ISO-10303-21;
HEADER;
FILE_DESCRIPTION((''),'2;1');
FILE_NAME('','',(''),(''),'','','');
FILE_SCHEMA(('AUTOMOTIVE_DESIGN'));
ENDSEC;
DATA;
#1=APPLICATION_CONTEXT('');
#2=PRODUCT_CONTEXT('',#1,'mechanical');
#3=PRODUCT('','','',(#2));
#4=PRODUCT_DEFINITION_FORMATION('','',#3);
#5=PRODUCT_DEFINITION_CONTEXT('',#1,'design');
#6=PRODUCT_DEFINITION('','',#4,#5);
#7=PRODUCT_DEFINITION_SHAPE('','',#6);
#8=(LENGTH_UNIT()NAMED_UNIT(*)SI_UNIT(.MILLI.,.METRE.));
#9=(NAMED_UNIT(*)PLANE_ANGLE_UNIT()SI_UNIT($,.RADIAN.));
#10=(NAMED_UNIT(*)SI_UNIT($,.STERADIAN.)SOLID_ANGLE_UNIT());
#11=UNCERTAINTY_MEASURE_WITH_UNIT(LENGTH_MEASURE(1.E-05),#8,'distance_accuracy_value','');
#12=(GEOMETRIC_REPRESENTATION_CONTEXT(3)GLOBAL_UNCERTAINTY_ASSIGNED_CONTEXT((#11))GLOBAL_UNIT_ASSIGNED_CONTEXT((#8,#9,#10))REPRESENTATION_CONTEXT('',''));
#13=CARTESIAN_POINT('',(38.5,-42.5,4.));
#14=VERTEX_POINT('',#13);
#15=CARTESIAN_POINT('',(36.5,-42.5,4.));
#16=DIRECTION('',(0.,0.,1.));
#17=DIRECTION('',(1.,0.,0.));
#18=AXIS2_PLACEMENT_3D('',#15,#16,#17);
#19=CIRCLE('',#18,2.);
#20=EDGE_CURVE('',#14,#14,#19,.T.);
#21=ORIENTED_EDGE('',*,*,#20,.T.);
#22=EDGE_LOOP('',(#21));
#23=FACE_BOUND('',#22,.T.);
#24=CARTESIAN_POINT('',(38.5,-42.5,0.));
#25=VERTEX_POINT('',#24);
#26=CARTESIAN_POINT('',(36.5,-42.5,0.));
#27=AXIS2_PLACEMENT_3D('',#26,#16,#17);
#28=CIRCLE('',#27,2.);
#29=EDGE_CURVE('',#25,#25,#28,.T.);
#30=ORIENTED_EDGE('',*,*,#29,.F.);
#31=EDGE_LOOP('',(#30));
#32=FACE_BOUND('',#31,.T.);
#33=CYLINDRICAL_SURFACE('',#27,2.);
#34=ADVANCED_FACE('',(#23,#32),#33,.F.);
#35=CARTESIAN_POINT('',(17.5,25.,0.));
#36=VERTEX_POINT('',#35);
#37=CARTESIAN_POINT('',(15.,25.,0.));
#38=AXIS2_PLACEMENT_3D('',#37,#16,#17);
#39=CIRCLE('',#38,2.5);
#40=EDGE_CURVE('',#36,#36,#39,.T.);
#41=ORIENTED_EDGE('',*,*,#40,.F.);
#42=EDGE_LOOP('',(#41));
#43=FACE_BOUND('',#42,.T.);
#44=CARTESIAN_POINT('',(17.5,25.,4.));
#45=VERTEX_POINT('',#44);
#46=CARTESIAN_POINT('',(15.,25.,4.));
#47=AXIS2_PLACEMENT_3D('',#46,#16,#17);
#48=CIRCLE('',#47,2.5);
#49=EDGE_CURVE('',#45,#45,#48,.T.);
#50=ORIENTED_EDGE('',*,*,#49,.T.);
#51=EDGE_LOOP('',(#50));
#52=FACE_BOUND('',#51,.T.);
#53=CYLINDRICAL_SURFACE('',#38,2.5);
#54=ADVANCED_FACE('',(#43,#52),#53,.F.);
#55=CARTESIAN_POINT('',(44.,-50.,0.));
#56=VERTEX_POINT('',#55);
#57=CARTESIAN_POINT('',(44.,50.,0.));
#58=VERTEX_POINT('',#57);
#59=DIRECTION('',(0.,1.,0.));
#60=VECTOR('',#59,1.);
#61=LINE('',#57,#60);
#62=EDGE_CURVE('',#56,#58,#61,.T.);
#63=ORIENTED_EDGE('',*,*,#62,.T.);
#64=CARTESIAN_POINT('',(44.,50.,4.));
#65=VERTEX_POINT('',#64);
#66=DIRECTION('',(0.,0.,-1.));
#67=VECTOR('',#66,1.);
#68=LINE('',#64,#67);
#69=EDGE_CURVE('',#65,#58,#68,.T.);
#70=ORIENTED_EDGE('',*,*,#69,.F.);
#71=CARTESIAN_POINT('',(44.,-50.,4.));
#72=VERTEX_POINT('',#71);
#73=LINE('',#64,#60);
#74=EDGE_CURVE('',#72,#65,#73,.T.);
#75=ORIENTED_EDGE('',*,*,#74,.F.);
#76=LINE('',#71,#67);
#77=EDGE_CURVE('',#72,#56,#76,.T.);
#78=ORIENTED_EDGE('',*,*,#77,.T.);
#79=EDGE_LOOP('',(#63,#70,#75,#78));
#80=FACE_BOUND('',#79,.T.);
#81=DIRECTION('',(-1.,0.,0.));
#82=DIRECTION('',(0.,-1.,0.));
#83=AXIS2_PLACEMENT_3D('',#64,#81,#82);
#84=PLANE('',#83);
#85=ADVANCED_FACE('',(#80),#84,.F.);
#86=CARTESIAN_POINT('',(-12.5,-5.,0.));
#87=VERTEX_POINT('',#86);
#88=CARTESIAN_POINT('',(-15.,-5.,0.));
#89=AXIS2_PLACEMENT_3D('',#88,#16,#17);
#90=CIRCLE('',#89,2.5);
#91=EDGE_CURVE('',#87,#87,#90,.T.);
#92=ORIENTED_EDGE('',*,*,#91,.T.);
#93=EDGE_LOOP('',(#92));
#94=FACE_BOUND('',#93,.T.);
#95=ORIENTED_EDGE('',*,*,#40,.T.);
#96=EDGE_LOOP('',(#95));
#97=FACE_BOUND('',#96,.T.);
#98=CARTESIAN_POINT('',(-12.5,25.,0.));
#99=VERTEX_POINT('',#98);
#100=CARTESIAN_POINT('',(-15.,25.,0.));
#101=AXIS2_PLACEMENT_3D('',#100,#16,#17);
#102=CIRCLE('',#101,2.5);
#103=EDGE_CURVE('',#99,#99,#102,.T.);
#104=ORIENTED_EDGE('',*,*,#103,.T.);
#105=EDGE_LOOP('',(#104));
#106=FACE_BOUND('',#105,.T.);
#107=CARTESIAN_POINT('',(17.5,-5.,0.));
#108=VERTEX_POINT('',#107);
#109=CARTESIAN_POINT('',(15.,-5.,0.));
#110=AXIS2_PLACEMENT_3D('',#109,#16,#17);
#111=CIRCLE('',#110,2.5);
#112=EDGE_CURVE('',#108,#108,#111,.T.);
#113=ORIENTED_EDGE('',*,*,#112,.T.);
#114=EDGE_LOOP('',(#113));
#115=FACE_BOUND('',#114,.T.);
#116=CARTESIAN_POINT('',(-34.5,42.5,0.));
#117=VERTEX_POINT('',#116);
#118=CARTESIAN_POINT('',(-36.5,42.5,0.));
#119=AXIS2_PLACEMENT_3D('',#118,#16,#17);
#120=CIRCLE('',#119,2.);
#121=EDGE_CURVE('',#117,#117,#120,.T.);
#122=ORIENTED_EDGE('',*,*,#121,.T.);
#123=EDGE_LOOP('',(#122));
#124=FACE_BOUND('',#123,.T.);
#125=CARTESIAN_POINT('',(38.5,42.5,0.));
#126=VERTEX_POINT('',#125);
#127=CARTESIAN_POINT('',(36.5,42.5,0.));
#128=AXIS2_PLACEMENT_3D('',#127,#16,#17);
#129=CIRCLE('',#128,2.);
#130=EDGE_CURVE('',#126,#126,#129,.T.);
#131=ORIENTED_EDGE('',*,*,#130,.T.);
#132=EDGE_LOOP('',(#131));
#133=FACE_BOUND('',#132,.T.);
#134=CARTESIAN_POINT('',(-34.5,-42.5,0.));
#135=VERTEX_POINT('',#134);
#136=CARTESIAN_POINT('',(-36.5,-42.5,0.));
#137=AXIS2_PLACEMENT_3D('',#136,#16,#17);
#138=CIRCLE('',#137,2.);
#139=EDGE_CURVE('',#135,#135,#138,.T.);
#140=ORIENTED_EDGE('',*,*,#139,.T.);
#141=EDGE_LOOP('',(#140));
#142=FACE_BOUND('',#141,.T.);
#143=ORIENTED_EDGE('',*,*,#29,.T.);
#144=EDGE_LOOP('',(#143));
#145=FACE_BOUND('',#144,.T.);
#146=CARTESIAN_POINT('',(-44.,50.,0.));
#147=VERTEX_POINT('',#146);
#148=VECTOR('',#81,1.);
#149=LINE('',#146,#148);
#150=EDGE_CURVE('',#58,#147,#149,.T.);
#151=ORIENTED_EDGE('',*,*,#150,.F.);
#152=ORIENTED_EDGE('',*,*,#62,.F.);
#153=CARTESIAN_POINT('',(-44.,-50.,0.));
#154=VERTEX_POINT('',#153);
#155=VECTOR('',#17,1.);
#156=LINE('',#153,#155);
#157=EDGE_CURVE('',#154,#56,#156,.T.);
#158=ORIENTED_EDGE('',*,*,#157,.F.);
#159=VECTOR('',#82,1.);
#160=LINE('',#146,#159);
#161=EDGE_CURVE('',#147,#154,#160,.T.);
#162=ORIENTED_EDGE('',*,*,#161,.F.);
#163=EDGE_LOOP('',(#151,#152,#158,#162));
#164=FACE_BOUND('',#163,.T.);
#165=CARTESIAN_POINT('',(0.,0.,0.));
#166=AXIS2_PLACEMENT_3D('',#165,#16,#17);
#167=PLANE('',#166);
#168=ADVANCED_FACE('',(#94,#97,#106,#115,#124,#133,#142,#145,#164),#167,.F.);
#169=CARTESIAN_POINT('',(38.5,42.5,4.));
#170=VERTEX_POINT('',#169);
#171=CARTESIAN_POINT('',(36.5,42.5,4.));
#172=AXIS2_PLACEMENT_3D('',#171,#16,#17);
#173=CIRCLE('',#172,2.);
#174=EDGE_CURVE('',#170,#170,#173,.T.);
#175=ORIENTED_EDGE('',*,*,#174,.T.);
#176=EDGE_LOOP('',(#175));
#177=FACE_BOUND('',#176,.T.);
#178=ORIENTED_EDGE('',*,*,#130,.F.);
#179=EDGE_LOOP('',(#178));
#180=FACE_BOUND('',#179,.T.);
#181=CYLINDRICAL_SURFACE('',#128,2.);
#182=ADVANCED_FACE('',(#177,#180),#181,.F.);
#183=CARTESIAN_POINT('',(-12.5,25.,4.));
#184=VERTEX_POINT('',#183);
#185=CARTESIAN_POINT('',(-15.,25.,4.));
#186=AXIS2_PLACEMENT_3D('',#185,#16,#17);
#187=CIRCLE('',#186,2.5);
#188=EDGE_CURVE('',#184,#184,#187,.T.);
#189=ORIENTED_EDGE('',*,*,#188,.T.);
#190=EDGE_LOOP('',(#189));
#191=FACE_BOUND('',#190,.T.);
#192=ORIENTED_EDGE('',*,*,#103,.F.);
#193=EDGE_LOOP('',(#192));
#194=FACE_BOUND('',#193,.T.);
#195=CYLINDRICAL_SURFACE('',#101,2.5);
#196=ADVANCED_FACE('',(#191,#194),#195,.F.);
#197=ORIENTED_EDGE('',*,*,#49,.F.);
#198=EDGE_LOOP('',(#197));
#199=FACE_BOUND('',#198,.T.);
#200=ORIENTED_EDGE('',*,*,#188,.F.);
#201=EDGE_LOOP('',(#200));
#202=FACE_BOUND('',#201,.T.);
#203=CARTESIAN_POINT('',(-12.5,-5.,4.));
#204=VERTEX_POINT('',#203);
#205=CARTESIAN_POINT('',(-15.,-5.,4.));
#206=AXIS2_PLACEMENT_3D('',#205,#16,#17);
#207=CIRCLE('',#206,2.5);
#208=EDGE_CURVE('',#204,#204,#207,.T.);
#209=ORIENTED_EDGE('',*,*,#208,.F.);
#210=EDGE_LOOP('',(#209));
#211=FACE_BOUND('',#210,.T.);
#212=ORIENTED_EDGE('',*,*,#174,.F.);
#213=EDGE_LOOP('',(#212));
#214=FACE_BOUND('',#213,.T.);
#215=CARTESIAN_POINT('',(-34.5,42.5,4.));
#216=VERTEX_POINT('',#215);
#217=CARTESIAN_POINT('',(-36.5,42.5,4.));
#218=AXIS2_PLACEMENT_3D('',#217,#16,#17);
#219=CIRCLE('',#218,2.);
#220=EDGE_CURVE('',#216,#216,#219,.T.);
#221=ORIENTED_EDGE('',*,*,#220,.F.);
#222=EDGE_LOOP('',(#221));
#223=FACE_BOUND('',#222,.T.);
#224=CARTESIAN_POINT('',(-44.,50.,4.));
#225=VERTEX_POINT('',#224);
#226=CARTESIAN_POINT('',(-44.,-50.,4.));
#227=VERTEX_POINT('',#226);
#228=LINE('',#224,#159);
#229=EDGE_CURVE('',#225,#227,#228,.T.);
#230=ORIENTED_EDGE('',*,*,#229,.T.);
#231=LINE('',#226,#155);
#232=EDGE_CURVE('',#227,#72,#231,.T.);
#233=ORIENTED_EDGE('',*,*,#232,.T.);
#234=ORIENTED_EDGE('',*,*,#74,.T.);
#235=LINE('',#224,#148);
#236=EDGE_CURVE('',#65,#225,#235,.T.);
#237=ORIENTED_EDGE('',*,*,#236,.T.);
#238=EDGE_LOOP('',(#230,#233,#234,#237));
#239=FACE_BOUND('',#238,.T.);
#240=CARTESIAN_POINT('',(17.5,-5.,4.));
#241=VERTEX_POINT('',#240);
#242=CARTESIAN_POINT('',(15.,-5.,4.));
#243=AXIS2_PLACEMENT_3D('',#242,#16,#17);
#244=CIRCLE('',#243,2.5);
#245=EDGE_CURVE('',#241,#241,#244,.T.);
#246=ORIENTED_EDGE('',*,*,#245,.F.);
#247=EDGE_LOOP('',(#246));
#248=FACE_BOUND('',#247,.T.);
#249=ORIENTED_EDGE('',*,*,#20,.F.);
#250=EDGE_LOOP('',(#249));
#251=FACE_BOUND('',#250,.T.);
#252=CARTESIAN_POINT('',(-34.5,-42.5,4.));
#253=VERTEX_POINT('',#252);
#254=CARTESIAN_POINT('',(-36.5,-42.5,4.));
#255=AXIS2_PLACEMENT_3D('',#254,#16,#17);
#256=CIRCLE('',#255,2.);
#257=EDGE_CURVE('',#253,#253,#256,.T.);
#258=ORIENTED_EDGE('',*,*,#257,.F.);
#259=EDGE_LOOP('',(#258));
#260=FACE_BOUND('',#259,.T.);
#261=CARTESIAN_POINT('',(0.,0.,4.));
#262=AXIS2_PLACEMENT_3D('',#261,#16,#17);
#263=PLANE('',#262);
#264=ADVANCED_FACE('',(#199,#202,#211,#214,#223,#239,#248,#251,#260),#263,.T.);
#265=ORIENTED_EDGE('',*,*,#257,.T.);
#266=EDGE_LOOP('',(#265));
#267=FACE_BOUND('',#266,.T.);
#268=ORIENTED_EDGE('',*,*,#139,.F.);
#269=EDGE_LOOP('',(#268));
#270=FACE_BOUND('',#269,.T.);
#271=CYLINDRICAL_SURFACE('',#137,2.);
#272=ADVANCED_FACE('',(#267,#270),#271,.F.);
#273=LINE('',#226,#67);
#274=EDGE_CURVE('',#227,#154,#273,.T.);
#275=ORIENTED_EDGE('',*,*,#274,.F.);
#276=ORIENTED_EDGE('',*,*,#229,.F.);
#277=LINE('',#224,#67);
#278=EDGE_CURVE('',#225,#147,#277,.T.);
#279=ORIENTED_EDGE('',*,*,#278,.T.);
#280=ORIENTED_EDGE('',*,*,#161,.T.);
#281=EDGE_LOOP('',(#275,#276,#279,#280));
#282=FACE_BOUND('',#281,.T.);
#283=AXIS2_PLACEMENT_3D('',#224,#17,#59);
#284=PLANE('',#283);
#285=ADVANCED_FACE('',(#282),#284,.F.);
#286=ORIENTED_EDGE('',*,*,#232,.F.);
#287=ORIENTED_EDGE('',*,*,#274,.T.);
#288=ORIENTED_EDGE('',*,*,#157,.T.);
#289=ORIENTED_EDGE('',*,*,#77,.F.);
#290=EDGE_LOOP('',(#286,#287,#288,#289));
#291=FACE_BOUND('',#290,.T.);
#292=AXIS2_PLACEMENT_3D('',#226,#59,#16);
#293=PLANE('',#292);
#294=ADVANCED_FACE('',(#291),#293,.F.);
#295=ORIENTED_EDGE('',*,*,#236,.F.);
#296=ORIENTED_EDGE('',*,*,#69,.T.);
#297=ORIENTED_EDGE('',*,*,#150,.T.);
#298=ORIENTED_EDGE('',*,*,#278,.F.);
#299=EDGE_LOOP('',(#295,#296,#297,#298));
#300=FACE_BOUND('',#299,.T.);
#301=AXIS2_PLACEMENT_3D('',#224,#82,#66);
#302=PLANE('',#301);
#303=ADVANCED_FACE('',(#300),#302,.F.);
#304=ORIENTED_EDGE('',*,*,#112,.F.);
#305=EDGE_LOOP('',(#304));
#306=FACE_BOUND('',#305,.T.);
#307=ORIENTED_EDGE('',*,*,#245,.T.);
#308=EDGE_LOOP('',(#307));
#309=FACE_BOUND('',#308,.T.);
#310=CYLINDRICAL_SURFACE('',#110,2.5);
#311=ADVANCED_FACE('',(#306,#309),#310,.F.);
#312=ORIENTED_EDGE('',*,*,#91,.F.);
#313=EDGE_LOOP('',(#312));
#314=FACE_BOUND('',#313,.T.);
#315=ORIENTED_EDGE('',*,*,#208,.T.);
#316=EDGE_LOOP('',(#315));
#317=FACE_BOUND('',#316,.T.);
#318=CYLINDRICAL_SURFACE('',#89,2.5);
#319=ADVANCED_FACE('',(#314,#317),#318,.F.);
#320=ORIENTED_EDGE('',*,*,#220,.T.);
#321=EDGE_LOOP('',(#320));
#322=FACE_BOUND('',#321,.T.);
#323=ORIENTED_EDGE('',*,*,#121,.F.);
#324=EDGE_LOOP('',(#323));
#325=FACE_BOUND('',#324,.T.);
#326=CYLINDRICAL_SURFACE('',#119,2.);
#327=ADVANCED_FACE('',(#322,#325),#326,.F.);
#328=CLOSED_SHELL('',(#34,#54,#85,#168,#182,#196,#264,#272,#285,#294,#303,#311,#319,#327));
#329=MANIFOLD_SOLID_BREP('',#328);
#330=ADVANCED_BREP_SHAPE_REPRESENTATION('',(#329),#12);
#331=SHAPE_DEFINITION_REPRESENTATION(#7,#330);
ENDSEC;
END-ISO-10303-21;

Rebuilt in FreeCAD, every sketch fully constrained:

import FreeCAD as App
import Part
import Sketcher


def add_polygon(sketch, points):
    """Adds a closed chain of lines whose ends are joined by coincident constraints."""
    first, n = sketch.GeometryCount, len(points)
    for a, b in zip(points, points[1:] + points[:1]):
        sketch.addGeometry(Part.LineSegment(App.Vector(*a, 0), App.Vector(*b, 0)), False)
    for i in range(n):
        sketch.addConstraint(Sketcher.Constraint("Coincident", first + i, 2, first + (i + 1) % n, 1))

doc = App.newDocument("Part")
body = doc.addObject("PartDesign::Body", "Body")

# Sketch on XY plane
sketch1 = body.newObject("Sketcher::SketchObject", "Sketch")
sketch1.AttachmentSupport = (doc.getObject("XY_Plane"), [""])
sketch1.MapMode = "FlatFace"
add_polygon(sketch1, [(-44, 50), (-44, -50), (44, -50), (44, 50)])  # lines 0-3
sketch1.addConstraint(Sketcher.Constraint("Vertical", 0))
sketch1.addConstraint(Sketcher.Constraint("Horizontal", 1))
sketch1.addConstraint(Sketcher.Constraint("Vertical", 2))
sketch1.addConstraint(Sketcher.Constraint("Horizontal", 3))
sketch1.addConstraint(Sketcher.Constraint("Symmetric", 0, 2, 2, 2, -1, 1))
sketch1.addConstraint(Sketcher.Constraint("DistanceX", 1, 1, 1, 2, 88.0))
sketch1.addConstraint(Sketcher.Constraint("DistanceY", 0, 2, 0, 1, 100.0))
pad1 = body.newObject("PartDesign::Pad", "Pad")
pad1.Profile = sketch1
pad1.Length = 4

# Sketch on XY plane
sketch2 = body.newObject("Sketcher::SketchObject", "Sketch001")
sketch2.AttachmentSupport = (doc.getObject("XY_Plane"), [""])
sketch2.MapMode = "FlatFace"
sketch2.AttachmentOffset = App.Placement(App.Vector(0, 0, 4), App.Rotation())
sketch2.addGeometry(Part.Circle(App.Vector(-36.5, 42.5, 0), App.Vector(0, 0, 1), 2), False)
sketch2.addGeometry(Part.Circle(App.Vector(36.5, 42.5, 0), App.Vector(0, 0, 1), 2), False)
sketch2.addGeometry(Part.Circle(App.Vector(36.5, -42.5, 0), App.Vector(0, 0, 1), 2), False)
sketch2.addGeometry(Part.Circle(App.Vector(-36.5, -42.5, 0), App.Vector(0, 0, 1), 2), False)
sketch2.addConstraint(Sketcher.Constraint("Equal", 0, 1))
sketch2.addConstraint(Sketcher.Constraint("Equal", 1, 2))
sketch2.addConstraint(Sketcher.Constraint("Equal", 2, 3))
sketch2.addConstraint(Sketcher.Constraint("Symmetric", 0, 3, 2, 3, -1, 1))
sketch2.addConstraint(Sketcher.Constraint("Symmetric", 1, 3, 3, 3, -1, 1))
sketch2.addConstraint(Sketcher.Constraint("Symmetric", 0, 3, 1, 3, -2))
sketch2.addConstraint(Sketcher.Constraint("Diameter", 0, 4.0))
sketch2.addConstraint(Sketcher.Constraint("DistanceX", 0, 3, 1, 3, 73.0))
sketch2.addConstraint(Sketcher.Constraint("DistanceY", 2, 3, 1, 3, 85.0))
pocket1 = body.newObject("PartDesign::Pocket", "Pocket")
pocket1.Profile = sketch2
pocket1.Type = "ThroughAll"

# Sketch on XY plane
sketch3 = body.newObject("Sketcher::SketchObject", "Sketch002")
sketch3.AttachmentSupport = (doc.getObject("XY_Plane"), [""])
sketch3.MapMode = "FlatFace"
sketch3.AttachmentOffset = App.Placement(App.Vector(0, 0, 4), App.Rotation())
sketch3.addGeometry(Part.Circle(App.Vector(-15, 25, 0), App.Vector(0, 0, 1), 2.5), False)
sketch3.addGeometry(Part.Circle(App.Vector(15, 25, 0), App.Vector(0, 0, 1), 2.5), False)
sketch3.addGeometry(Part.Circle(App.Vector(15, -5, 0), App.Vector(0, 0, 1), 2.5), False)
sketch3.addGeometry(Part.Circle(App.Vector(-15, -5, 0), App.Vector(0, 0, 1), 2.5), False)
sketch3.addConstraint(Sketcher.Constraint("Equal", 0, 1))
sketch3.addConstraint(Sketcher.Constraint("Equal", 1, 2))
sketch3.addConstraint(Sketcher.Constraint("Equal", 2, 3))
sketch3.addConstraint(Sketcher.Constraint("Symmetric", 0, 3, 1, 3, -2))
sketch3.addConstraint(Sketcher.Constraint("Symmetric", 2, 3, 3, 3, -2))
sketch3.addConstraint(Sketcher.Constraint("Vertical", 1, 3, 2, 3))
sketch3.addConstraint(Sketcher.Constraint("Diameter", 0, 5.0))
sketch3.addConstraint(Sketcher.Constraint("DistanceX", 0, 3, -1, 1, 15.0))
sketch3.addConstraint(Sketcher.Constraint("DistanceY", -1, 1, 0, 3, 25.0))
sketch3.addConstraint(Sketcher.Constraint("DistanceY", 2, 3, -1, 1, 5.0))
pocket2 = body.newObject("PartDesign::Pocket", "Pocket001")
pocket2.Profile = sketch3
pocket2.Type = "ThroughAll"

doc.recompute()
